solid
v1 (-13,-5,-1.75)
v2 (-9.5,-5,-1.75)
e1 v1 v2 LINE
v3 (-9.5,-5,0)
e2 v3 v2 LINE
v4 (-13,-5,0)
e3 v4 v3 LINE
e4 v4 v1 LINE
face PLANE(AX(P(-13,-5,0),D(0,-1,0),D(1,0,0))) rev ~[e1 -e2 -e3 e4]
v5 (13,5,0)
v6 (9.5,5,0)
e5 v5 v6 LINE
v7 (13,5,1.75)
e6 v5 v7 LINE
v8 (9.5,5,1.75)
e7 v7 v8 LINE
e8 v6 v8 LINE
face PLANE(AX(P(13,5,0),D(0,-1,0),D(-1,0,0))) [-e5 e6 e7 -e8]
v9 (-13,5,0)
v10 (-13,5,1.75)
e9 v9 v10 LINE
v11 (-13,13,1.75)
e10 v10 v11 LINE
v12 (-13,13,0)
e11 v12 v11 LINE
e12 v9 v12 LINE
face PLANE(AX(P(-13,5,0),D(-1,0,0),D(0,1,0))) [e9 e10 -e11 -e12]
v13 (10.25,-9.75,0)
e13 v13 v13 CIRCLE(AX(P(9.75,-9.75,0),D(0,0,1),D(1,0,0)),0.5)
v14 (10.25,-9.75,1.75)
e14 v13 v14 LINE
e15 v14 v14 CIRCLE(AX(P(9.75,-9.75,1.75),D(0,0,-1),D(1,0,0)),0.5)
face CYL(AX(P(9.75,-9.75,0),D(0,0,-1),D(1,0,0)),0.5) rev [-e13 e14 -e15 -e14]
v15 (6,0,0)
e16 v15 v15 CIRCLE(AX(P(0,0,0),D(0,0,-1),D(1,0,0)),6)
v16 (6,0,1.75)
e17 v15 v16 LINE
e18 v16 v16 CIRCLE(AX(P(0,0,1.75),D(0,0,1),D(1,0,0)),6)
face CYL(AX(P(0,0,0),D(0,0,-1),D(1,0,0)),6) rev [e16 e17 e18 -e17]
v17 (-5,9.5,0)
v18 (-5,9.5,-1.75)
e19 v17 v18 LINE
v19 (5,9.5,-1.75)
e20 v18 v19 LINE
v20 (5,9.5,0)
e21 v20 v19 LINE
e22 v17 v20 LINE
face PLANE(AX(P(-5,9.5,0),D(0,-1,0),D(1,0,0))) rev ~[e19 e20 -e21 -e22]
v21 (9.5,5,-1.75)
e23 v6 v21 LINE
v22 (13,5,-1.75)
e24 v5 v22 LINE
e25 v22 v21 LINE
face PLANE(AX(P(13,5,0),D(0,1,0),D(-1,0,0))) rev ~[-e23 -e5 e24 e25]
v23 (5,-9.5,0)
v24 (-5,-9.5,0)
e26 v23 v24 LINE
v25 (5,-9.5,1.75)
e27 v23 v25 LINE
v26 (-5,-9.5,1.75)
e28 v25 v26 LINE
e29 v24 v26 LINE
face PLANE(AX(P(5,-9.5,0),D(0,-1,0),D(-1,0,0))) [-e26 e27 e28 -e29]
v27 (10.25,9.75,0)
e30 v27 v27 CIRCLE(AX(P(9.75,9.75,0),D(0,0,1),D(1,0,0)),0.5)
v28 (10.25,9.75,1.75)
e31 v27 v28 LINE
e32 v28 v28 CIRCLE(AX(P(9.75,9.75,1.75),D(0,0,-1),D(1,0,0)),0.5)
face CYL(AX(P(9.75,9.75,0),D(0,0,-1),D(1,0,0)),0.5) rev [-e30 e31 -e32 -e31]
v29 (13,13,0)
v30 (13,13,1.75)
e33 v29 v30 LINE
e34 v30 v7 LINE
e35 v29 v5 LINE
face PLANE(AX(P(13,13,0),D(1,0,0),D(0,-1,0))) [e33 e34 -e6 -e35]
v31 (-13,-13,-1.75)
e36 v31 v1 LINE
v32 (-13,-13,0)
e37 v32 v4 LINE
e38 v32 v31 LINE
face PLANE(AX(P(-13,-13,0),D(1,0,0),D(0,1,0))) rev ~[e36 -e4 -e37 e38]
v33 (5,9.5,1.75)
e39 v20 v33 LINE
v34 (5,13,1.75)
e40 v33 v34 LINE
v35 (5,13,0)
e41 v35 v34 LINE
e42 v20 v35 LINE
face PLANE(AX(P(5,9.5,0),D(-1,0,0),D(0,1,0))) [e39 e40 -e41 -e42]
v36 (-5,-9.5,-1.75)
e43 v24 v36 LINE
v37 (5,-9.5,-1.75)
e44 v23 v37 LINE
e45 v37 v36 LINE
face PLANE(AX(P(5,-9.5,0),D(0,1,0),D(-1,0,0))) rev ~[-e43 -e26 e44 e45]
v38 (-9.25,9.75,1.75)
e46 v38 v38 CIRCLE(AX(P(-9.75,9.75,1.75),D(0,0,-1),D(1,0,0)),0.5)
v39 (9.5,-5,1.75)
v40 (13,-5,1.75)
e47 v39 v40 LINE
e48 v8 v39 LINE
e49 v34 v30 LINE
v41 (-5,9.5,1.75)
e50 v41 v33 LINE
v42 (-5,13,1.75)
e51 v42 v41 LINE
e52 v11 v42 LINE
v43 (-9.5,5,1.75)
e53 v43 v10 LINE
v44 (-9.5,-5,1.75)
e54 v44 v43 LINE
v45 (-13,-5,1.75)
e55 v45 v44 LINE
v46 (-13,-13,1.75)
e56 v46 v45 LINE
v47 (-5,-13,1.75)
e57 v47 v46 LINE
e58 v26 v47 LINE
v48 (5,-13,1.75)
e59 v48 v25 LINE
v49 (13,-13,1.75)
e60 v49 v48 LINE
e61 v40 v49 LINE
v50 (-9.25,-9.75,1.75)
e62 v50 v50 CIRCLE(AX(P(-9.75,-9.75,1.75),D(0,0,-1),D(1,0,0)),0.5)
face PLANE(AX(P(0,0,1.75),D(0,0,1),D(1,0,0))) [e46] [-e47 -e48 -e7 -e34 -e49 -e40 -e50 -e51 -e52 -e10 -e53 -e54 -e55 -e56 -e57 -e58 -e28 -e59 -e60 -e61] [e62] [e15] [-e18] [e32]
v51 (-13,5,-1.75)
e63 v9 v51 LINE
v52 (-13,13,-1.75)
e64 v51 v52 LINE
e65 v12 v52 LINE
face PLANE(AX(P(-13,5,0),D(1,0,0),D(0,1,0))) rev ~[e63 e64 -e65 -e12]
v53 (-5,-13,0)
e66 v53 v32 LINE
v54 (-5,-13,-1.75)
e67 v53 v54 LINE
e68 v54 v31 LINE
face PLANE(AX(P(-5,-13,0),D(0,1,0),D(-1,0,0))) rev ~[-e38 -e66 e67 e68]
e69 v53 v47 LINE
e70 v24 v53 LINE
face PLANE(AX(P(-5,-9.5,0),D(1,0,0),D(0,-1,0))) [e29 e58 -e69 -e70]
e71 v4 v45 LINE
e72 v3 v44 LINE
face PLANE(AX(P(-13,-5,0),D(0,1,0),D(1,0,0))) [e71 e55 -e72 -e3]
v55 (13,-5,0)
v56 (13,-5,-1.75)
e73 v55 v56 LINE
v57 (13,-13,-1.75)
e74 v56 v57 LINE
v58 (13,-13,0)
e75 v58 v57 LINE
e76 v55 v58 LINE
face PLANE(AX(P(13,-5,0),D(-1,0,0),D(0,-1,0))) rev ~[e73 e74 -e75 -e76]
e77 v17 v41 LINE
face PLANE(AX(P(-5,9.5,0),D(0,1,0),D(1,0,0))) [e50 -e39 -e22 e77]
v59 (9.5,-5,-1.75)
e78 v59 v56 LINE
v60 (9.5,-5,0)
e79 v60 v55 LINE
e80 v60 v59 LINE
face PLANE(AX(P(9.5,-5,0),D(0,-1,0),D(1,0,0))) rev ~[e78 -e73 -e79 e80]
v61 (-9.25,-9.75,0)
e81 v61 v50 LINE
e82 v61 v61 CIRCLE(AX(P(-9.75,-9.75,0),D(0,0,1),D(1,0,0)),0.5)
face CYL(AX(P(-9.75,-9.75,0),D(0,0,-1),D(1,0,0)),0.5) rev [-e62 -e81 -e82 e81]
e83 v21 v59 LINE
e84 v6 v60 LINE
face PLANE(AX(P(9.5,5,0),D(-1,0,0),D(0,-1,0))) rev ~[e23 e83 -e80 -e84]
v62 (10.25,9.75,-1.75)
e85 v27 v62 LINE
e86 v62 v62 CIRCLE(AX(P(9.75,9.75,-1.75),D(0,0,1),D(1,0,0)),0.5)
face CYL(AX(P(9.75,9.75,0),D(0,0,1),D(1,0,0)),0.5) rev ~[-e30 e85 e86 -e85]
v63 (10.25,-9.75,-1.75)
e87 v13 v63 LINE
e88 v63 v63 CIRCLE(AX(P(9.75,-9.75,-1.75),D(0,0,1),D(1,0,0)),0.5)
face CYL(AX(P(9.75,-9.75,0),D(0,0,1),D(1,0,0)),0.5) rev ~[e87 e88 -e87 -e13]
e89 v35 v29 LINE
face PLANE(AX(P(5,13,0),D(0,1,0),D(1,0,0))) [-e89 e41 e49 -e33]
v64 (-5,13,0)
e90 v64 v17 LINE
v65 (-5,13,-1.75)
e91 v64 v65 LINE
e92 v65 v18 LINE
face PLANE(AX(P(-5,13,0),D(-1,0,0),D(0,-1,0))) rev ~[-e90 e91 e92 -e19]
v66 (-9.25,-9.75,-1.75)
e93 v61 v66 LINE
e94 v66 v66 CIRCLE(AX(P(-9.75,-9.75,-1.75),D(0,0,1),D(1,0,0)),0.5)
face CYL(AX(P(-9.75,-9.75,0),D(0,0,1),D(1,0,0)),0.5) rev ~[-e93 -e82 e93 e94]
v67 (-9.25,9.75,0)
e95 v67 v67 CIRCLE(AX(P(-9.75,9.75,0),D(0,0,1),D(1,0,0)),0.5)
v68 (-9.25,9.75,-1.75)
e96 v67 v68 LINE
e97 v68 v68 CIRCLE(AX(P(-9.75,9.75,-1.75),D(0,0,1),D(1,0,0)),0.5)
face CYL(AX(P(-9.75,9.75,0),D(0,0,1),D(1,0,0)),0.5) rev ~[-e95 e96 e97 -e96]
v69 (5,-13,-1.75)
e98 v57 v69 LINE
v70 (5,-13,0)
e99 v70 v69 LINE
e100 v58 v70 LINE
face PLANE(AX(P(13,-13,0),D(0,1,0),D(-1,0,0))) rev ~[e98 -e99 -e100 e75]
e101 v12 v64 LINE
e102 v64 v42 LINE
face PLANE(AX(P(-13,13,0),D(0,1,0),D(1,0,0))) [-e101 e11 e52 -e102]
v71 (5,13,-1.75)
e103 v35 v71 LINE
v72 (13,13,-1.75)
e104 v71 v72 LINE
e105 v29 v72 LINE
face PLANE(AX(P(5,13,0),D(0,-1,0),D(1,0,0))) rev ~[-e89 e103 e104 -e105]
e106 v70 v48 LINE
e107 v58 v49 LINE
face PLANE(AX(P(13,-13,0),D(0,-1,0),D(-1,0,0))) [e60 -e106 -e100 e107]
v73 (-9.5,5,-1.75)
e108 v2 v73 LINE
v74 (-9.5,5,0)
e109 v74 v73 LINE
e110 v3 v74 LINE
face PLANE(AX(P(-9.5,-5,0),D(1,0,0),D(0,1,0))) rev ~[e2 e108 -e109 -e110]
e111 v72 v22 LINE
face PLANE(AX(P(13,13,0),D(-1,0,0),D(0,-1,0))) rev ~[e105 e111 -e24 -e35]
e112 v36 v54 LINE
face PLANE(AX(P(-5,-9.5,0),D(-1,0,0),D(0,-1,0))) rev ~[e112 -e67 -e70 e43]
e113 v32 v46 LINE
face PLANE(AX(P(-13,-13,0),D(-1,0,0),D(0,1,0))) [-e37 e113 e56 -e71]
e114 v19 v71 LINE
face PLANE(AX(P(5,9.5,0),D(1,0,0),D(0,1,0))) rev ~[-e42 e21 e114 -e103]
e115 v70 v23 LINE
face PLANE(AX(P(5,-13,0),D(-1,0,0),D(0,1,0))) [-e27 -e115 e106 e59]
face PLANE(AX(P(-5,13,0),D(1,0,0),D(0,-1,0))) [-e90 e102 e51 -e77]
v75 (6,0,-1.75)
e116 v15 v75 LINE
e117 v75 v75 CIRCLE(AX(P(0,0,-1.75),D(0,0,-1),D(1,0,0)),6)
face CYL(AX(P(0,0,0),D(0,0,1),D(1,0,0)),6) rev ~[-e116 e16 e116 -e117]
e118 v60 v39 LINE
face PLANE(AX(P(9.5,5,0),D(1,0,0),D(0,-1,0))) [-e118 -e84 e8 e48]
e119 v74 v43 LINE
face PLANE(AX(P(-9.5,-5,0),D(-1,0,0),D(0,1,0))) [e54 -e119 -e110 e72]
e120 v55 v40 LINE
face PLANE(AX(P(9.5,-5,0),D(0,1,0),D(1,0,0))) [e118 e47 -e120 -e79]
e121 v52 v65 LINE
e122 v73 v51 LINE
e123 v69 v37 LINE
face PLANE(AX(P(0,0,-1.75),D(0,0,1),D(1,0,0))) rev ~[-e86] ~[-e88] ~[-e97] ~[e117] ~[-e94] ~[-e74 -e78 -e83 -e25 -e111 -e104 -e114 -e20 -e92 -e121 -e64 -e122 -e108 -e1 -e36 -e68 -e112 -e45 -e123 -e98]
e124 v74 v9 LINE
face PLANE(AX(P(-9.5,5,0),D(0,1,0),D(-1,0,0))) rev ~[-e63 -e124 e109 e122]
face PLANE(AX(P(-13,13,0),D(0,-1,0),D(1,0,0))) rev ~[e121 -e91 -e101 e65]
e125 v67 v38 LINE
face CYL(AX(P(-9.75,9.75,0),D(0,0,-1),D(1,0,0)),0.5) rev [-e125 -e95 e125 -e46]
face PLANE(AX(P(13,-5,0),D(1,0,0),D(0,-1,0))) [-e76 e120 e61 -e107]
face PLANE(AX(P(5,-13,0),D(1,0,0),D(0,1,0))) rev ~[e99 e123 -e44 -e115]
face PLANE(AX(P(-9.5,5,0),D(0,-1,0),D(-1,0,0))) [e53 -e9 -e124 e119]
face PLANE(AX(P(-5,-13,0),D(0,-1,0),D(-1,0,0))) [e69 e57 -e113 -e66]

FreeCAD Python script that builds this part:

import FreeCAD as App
import Part
import Sketcher
from FreeCAD import Vector


def add_polygon(sketch, points):
    """Adds a closed chain of lines whose ends are joined by coincident constraints."""
    first, n = sketch.GeometryCount, len(points)
    for a, b in zip(points, points[1:] + points[:1]):
        sketch.addGeometry(Part.LineSegment(App.Vector(*a, 0), App.Vector(*b, 0)), False)
    for i in range(n):
        sketch.addConstraint(Sketcher.Constraint("Coincident", first + i, 2, first + (i + 1) % n, 1))

doc = App.newDocument("Part")
body = doc.addObject("PartDesign::Body", "Body")

# Sketch on XY plane
sketch1 = doc.addObject("Sketcher::SketchObject", "Sketch")
body.addObject(sketch1)
sketch1.AttachmentSupport = (doc.XY_Plane, [""])
sketch1.MapMode = "FlatFace"
add_polygon(sketch1, [(13, 5), (13, 13), (5, 13), (5, 9.5), (-5, 9.5), (-5, 13), (-13, 13), (-13, 5), (-9.5, 5), (-9.5, -5), (-13, -5), (-13, -13), (-5, -13), (-5, -9.5), (5, -9.5), (5, -13), (13, -13), (13, -5), (9.5, -5), (9.5, 5)])  # lines 0-19
sketch1.addGeometry(Part.Circle(Vector(0, 0, 0), Vector(0, 0, 1), 6), False)  # 20
sketch1.addGeometry(Part.Circle(Vector(9.75, 9.75, 0), Vector(0, 0, 1), 0.5), False)  # 21
sketch1.addGeometry(Part.Circle(Vector(9.75, -9.75, 0), Vector(0, 0, 1), 0.5), False)  # 22
sketch1.addGeometry(Part.Circle(Vector(-9.75, 9.75, 0), Vector(0, 0, 1), 0.5), False)  # 23
sketch1.addGeometry(Part.Circle(Vector(-9.75, -9.75, 0), Vector(0, 0, 1), 0.5), False)  # 24
sketch1.addConstraint(Sketcher.Constraint("Vertical", 0))
sketch1.addConstraint(Sketcher.Constraint("Horizontal", 1))
sketch1.addConstraint(Sketcher.Constraint("Vertical", 2))
sketch1.addConstraint(Sketcher.Constraint("Horizontal", 3))
sketch1.addConstraint(Sketcher.Constraint("Vertical", 4))
sketch1.addConstraint(Sketcher.Constraint("Horizontal", 5))
sketch1.addConstraint(Sketcher.Constraint("Vertical", 6))
sketch1.addConstraint(Sketcher.Constraint("Horizontal", 7))
sketch1.addConstraint(Sketcher.Constraint("Vertical", 8))
sketch1.addConstraint(Sketcher.Constraint("Horizontal", 9))
sketch1.addConstraint(Sketcher.Constraint("Vertical", 10))
sketch1.addConstraint(Sketcher.Constraint("Horizontal", 11))
sketch1.addConstraint(Sketcher.Constraint("Vertical", 12))
sketch1.addConstraint(Sketcher.Constraint("Horizontal", 13))
sketch1.addConstraint(Sketcher.Constraint("Vertical", 14))
sketch1.addConstraint(Sketcher.Constraint("Horizontal", 15))
sketch1.addConstraint(Sketcher.Constraint("Vertical", 16))
sketch1.addConstraint(Sketcher.Constraint("Horizontal", 17))
sketch1.addConstraint(Sketcher.Constraint("Vertical", 18))
sketch1.addConstraint(Sketcher.Constraint("Horizontal", 19))
sketch1.addConstraint(Sketcher.Constraint("Coincident", 20, 3, -1, 1))
sketch1.addConstraint(Sketcher.Constraint("Equal", 21, 22))
sketch1.addConstraint(Sketcher.Constraint("Equal", 22, 23))
sketch1.addConstraint(Sketcher.Constraint("Equal", 23, 24))
sketch1.addConstraint(Sketcher.Constraint("Symmetric", 22, 3, 23, 3, -1, 1))
sketch1.addConstraint(Sketcher.Constraint("Symmetric", 21, 3, 24, 3, -1, 1))
sketch1.addConstraint(Sketcher.Constraint("Symmetric", 0, 2, 10, 2, -1, 1))
sketch1.addConstraint(Sketcher.Constraint("Symmetric", 2, 2, 12, 2, -1, 1))
sketch1.addConstraint(Sketcher.Constraint("Symmetric", 4, 2, 14, 2, -1, 1))
sketch1.addConstraint(Sketcher.Constraint("Symmetric", 6, 2, 16, 2, -1, 1))
sketch1.addConstraint(Sketcher.Constraint("Symmetric", 8, 2, 18, 2, -1, 1))
sketch1.addConstraint(Sketcher.Constraint("Symmetric", 21, 3, 23, 3, -2))
sketch1.addConstraint(Sketcher.Constraint("Symmetric", 1, 2, 4, 2, -2))
sketch1.addConstraint(Sketcher.Constraint("Symmetric", 9, 2, 16, 2, -2))
sketch1.addConstraint(Sketcher.Constraint("Equal", 15, 0))
sketch1.addConstraint(Sketcher.Constraint("Equal", 19, 2))
sketch1.addConstraint(Sketcher.Constraint("Equal", 13, 8))
sketch1.addConstraint(Sketcher.Constraint("Diameter", 20, 12.0))
sketch1.addConstraint(Sketcher.Constraint("Diameter", 21, 1.0))
sketch1.addConstraint(Sketcher.Constraint("DistanceX", 3, 2, 3, 1, 10.0))
sketch1.addConstraint(Sketcher.Constraint("DistanceX", 7, 1, 7, 2, 3.5))
sketch1.addConstraint(Sketcher.Constraint("DistanceX", 1, 2, 1, 1, 8.0))
sketch1.addConstraint(Sketcher.Constraint("DistanceY", 22, 3, 21, 3, 19.5))
sketch1.addConstraint(Sketcher.Constraint("DistanceX", 23, 3, 21, 3, 19.5))
pad1 = doc.addObject("PartDesign::Pad", "Pad")
body.addObject(pad1)
pad1.Profile = sketch1
pad1.Length = 3.5
pad1.Midplane = True

doc.recompute()
